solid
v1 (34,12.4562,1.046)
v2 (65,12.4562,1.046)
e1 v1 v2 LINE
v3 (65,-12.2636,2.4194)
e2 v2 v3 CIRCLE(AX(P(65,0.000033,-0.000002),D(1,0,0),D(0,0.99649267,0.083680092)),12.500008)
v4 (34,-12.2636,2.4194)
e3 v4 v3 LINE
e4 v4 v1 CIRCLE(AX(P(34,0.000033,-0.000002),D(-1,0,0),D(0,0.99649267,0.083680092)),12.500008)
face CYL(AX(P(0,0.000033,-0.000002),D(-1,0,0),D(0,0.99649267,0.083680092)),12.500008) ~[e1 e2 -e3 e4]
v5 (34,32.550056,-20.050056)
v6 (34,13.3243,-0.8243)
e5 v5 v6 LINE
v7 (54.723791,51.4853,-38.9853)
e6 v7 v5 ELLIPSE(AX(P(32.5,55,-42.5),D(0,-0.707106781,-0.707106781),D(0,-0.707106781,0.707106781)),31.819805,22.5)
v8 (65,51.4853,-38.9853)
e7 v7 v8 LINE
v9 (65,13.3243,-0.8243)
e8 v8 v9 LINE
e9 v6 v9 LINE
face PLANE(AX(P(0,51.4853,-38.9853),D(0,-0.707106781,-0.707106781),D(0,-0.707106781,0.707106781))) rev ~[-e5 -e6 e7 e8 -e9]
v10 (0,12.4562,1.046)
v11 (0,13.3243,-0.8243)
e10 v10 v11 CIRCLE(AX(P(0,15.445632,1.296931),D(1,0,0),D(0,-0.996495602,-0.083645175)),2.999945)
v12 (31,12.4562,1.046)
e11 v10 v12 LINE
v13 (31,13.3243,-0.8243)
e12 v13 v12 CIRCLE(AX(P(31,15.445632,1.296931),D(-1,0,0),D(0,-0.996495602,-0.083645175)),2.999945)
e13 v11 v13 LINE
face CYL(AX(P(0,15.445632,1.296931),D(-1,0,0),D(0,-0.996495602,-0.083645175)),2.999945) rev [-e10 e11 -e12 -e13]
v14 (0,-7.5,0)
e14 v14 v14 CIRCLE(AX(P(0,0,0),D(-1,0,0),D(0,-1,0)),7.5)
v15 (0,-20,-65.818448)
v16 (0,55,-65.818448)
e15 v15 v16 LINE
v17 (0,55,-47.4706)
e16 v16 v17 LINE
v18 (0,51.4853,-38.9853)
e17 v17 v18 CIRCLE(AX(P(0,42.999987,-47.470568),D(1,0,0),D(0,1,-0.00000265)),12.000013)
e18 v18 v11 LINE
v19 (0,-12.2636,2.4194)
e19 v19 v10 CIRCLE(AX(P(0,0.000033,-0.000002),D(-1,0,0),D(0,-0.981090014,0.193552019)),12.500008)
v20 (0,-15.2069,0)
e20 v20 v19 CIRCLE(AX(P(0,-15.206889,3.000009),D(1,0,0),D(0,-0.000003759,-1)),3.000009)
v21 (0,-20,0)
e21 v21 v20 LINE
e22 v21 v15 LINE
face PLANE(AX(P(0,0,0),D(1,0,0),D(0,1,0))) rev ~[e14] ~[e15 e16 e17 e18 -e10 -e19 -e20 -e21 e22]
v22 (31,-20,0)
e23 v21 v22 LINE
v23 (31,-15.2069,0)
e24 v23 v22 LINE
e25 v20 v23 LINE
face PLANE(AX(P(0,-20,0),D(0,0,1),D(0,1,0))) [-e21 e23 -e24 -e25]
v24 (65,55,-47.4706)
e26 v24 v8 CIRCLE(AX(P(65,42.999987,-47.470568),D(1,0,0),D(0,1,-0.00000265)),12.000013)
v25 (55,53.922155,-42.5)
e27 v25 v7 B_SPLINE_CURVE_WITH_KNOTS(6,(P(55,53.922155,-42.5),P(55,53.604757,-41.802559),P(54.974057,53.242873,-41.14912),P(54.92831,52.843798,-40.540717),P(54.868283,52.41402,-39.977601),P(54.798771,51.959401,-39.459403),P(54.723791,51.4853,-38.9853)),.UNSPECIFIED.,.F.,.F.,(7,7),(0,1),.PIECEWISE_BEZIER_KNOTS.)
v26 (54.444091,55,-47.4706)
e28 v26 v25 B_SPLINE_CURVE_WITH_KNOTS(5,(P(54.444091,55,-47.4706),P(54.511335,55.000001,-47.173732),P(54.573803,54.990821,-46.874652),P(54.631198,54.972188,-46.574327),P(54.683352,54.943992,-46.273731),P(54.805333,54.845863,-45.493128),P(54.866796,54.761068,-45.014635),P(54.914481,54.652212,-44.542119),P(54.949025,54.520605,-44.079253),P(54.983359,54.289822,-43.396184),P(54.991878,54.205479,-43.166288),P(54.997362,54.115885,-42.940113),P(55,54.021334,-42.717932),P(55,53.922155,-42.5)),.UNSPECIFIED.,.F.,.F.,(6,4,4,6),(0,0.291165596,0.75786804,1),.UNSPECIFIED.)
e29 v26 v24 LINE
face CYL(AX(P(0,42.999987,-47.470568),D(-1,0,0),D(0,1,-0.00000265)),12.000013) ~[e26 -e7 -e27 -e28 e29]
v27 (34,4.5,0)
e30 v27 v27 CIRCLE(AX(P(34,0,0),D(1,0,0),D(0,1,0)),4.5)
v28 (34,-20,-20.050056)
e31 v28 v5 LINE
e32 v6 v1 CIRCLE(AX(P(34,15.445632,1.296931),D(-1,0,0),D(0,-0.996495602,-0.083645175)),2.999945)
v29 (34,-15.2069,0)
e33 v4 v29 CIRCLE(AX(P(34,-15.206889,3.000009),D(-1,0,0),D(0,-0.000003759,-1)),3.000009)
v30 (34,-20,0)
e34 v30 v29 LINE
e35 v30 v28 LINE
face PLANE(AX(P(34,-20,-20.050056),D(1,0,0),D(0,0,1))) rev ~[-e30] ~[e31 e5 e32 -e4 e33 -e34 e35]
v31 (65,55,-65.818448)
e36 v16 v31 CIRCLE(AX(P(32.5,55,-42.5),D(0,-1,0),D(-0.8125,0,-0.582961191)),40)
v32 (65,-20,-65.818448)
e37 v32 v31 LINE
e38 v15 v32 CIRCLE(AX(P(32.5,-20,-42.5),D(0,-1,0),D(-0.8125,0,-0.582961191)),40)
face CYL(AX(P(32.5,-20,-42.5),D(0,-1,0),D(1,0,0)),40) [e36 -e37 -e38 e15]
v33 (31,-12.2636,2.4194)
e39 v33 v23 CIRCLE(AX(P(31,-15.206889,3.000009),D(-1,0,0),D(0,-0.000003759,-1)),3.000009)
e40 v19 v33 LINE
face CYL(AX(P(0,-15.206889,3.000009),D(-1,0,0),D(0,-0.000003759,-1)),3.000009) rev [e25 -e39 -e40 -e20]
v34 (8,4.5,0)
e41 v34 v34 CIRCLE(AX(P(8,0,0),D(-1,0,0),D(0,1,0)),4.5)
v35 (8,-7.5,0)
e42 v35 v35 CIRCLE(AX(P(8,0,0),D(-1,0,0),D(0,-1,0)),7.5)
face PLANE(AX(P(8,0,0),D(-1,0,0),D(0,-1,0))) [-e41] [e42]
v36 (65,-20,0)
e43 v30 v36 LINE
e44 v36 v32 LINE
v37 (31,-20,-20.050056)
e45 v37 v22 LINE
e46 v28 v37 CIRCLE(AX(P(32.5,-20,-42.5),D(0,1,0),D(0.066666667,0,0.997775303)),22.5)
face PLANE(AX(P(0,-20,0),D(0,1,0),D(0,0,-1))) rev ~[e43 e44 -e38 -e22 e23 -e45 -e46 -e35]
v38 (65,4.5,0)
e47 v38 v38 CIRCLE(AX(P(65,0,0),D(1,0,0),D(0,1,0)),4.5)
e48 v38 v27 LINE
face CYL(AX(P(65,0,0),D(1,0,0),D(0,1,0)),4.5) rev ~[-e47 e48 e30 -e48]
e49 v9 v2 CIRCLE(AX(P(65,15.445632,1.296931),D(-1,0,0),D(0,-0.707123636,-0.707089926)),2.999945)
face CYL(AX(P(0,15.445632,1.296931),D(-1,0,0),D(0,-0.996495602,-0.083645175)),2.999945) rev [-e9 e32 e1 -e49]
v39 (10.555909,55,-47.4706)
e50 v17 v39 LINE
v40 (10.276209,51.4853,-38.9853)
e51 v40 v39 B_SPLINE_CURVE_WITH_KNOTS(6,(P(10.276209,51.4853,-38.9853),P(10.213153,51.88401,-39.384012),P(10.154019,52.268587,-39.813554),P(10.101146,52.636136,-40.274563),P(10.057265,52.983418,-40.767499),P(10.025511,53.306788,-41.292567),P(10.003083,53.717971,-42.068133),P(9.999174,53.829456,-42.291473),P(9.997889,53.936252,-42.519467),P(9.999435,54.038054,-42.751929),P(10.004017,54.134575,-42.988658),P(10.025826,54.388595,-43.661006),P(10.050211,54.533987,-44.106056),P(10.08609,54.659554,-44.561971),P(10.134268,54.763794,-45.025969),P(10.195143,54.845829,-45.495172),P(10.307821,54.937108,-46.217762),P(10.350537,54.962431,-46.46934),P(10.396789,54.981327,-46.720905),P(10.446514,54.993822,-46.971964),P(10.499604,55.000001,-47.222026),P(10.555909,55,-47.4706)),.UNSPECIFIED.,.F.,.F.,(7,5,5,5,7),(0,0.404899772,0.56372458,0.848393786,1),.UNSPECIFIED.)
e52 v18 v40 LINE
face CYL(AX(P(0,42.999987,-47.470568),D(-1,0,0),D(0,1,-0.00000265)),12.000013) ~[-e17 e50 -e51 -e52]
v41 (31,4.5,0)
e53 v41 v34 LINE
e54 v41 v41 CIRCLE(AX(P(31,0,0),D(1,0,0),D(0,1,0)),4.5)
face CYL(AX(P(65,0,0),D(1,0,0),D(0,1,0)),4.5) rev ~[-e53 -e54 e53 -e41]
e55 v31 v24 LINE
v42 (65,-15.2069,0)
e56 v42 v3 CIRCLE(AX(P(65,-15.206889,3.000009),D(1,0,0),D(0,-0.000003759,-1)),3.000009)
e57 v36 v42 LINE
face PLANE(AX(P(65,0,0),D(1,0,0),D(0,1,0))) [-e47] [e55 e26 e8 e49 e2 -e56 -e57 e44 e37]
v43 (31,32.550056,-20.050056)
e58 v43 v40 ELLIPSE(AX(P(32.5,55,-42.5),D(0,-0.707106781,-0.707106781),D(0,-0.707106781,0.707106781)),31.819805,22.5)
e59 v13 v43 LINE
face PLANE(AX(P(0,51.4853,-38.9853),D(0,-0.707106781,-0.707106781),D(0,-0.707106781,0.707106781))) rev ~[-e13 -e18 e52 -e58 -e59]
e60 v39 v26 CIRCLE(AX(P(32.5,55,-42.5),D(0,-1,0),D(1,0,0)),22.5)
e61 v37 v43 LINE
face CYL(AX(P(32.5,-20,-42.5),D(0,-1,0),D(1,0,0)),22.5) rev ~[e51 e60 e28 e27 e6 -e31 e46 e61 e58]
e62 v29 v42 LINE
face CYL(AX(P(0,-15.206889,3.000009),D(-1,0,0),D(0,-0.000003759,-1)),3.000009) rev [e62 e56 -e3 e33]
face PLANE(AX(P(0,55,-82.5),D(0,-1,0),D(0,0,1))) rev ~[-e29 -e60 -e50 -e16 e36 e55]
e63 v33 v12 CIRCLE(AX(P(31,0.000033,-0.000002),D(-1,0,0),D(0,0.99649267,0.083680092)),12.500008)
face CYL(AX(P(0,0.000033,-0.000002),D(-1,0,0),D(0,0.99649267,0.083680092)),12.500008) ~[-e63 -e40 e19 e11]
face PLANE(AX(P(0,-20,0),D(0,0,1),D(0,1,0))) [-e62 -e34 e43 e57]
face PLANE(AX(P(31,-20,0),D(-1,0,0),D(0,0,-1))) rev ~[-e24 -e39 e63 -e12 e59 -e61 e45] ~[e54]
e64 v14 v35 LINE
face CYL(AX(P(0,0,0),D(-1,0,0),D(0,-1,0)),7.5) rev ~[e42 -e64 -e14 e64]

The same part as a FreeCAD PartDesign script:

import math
import FreeCAD as App
import Part
import Sketcher
Q = App.Units.Quantity

doc = App.newDocument("Part")
params = doc.addObject("Spreadsheet::Sheet", "Params")
for row, (alias, value) in enumerate([
    ("sketch1_radius", "12 mm"),
    ("sketch1_radius2", "3 mm"),
    ("sketch1_radius3", "12.5 mm"),
    ("sketch1_width", "75 mm"),
    ("sketch1_height", "82.5 mm"),
    ("pad1_length", "65 mm"),
    ("sketch2_diameter", "45 mm"),
    ("pocket1_length", "110 mm"),
    ("sketch3_radius", "40 mm"),
    ("sketch3_width", "32.5 mm"),
    ("pocket2_length", "110 mm"),
    ("sketch4_diameter", "9 mm"),
    ("pocket3_length", "120 mm"),
    ("sketch5_diameter", "15 mm"),
    ("sketch5_diameter2", "9 mm"),
    ("pocket4_length", "8 mm"),
    ("sketch6_width", "3 mm"),
    ("sketch6_radius", "22.5 mm"),
    ("pocket5_length", "130 mm"),
], start=1):
    params.set(f"A{row}", alias)
    params.set(f"B{row}", "=" + value)
    params.setAlias(f"B{row}", alias)

body = doc.addObject("PartDesign::Body", "Body")

# Sketch on YZ plane
sketch1 = body.newObject("Sketcher::SketchObject", "Sketch")
sketch1.AttachmentSupport = (doc.getObject("YZ_Plane"), [""])
sketch1.MapMode = "FlatFace"
sketch1.addGeometry(Part.LineSegment(App.Vector(-15.2, 0, 0), App.Vector(-20, 0, 0)), False)
sketch1.addGeometry(Part.LineSegment(App.Vector(-20, 0, 0), App.Vector(-20, -82.5, 0)), False)
sketch1.addGeometry(Part.LineSegment(App.Vector(-20, -82.5, 0), App.Vector(55, -82.5, 0)), False)
sketch1.addGeometry(Part.LineSegment(App.Vector(55, -82.5, 0), App.Vector(55, -47.5, 0)), False)
sketch1.addGeometry(Part.ArcOfCircle(Part.Circle(App.Vector(43, -47.5, 0), App.Vector(0, 0, 1), 12), math.radians(0), math.radians(45)), False)
sketch1.addGeometry(Part.LineSegment(App.Vector(51.5, -39, 0), App.Vector(13.3, -0.8, 0)), False)
sketch1.addGeometry(Part.ArcOfCircle(Part.Circle(App.Vector(15.4, 1.3, 0), App.Vector(0, 0, 1), 3), math.radians(-175), math.radians(-135)), False)
sketch1.addGeometry(Part.ArcOfCircle(Part.Circle(App.Vector(0, 0, 0), App.Vector(0, 0, 1), 12.5), math.radians(5), math.radians(169)), False)
sketch1.addGeometry(Part.ArcOfCircle(Part.Circle(App.Vector(-15.2, 3, 0), App.Vector(0, 0, 1), 3), math.radians(-90), math.radians(-11)), False)
sketch1.addConstraint(Sketcher.Constraint("Coincident", 0, 2, 1, 1))
sketch1.addConstraint(Sketcher.Constraint("Coincident", 1, 2, 2, 1))
sketch1.addConstraint(Sketcher.Constraint("Coincident", 2, 2, 3, 1))
sketch1.addConstraint(Sketcher.Constraint("Tangent", 3, 2, 4, 1))
sketch1.addConstraint(Sketcher.Constraint("Tangent", 4, 2, 5, 1))
sketch1.addConstraint(Sketcher.Constraint("Tangent", 5, 2, 6, 2))
sketch1.addConstraint(Sketcher.Constraint("Tangent", 6, 1, 7, 1))
sketch1.addConstraint(Sketcher.Constraint("Tangent", 7, 2, 8, 2))
sketch1.addConstraint(Sketcher.Constraint("Tangent", 8, 1, 0, 1))
sketch1.addConstraint(Sketcher.Constraint("Horizontal", 0))
sketch1.addConstraint(Sketcher.Constraint("Vertical", 1))
sketch1.addConstraint(Sketcher.Constraint("Horizontal", 2))
sketch1.addConstraint(Sketcher.Constraint("Vertical", 3))
sketch1.addConstraint(Sketcher.Constraint("Coincident", 7, 3, -1, 1))
sketch1.addConstraint(Sketcher.Constraint("Equal", 6, 8))
sketch1.addConstraint(Sketcher.Constraint("PointOnObject", 0, 2, -1))
sketch1.addConstraint(Sketcher.Constraint("Radius", 4, Q("12 mm")))
sketch1.addConstraint(Sketcher.Constraint("Radius", 6, Q("3 mm")))
sketch1.addConstraint(Sketcher.Constraint("Radius", 7, Q("12.5 mm")))
sketch1.addConstraint(Sketcher.Constraint("DistanceX", 2, 1, 2, 2, Q("75 mm")))
sketch1.addConstraint(Sketcher.Constraint("Angle", 5, Q("135 deg")))
sketch1.addConstraint(Sketcher.Constraint("DistanceY", 1, 2, 1, 1, Q("82.5 mm")))
sketch1.addConstraint(Sketcher.Constraint("DistanceX", -1, 1, 4, 3, Q("43 mm")))
sketch1.addConstraint(Sketcher.Constraint("DistanceY", 3, 1, 3, 2, Q("35.0294 mm")))
sketch1.setExpression("Constraints[16]", "Params.sketch1_radius")
sketch1.setExpression("Constraints[17]", "Params.sketch1_radius2")
sketch1.setExpression("Constraints[18]", "Params.sketch1_radius3")
sketch1.setExpression("Constraints[19]", "Params.sketch1_width")
sketch1.setExpression("Constraints[21]", "Params.sketch1_height")
pad1 = body.newObject("PartDesign::Pad", "Pad")
pad1.Profile = sketch1
pad1.setExpression("Length", "Params.pad1_length")

# Sketch on XZ plane
sketch2 = body.newObject("Sketcher::SketchObject", "Sketch001")
sketch2.AttachmentSupport = (doc.getObject("XZ_Plane"), [""])
sketch2.MapMode = "FlatFace"
sketch2.AttachmentOffset = App.Placement(App.Vector(0, 0, 20), App.Rotation())
sketch2.addGeometry(Part.Circle(App.Vector(32, -42, 0), App.Vector(0, 0, 1), 22), False)
sketch2.addConstraint(Sketcher.Constraint("Diameter", 0, Q("45 mm")))
sketch2.addConstraint(Sketcher.Constraint("DistanceY", 0, 3, -1, 1, Q("42.5 mm")))
sketch2.addConstraint(Sketcher.Constraint("DistanceX", -1, 1, 0, 3, Q("32.5 mm")))
sketch2.setExpression("Constraints[0]", "Params.sketch2_diameter")
pocket1 = body.newObject("PartDesign::Pocket", "Pocket")
pocket1.Profile = sketch2
pocket1.setExpression("Length", "Params.pocket1_length")

# Sketch on XZ plane
sketch3 = body.newObject("Sketcher::SketchObject", "Sketch002")
sketch3.AttachmentSupport = (doc.getObject("XZ_Plane"), [""])
sketch3.MapMode = "FlatFace"
sketch3.AttachmentOffset = App.Placement(App.Vector(0, 0, 20), App.Rotation())
sketch3.addGeometry(Part.ArcOfCircle(Part.Circle(App.Vector(32, -42, 0), App.Vector(0, 0, 1), 40), math.radians(-144), math.radians(-90)), False)
sketch3.addGeometry(Part.LineSegment(App.Vector(0, -66, 0), App.Vector(0, -82, 0)), False)
sketch3.addGeometry(Part.LineSegment(App.Vector(0, -82, 0), App.Vector(32, -82, 0)), False)
sketch3.addGeometry(Part.ArcOfCircle(Part.Circle(App.Vector(32, -42, 0), App.Vector(0, 0, 1), 40), math.radians(-90), math.radians(-36)), False)
sketch3.addGeometry(Part.LineSegment(App.Vector(32, -82, 0), App.Vector(65, -82, 0)), False)
sketch3.addGeometry(Part.LineSegment(App.Vector(65, -82, 0), App.Vector(65, -66, 0)), False)
sketch3.addConstraint(Sketcher.Constraint("Coincident", 0, 1, 1, 1))
sketch3.addConstraint(Sketcher.Constraint("Coincident", 1, 2, 2, 1))
sketch3.addConstraint(Sketcher.Constraint("Tangent", 2, 2, 0, 2))
sketch3.addConstraint(Sketcher.Constraint("Tangent", 3, 1, 4, 1))
sketch3.addConstraint(Sketcher.Constraint("Coincident", 4, 2, 5, 1))
sketch3.addConstraint(Sketcher.Constraint("Coincident", 5, 2, 3, 2))
sketch3.addConstraint(Sketcher.Constraint("Vertical", 1))
sketch3.addConstraint(Sketcher.Constraint("Horizontal", 2))
sketch3.addConstraint(Sketcher.Constraint("Horizontal", 4))
sketch3.addConstraint(Sketcher.Constraint("Vertical", 5))
sketch3.addConstraint(Sketcher.Constraint("Coincident", 3, 3, 0, 3))
sketch3.addConstraint(Sketcher.Constraint("Equal", 0, 3))
sketch3.addConstraint(Sketcher.Constraint("PointOnObject", 0, 1, -2))
sketch3.addConstraint(Sketcher.Constraint("Horizontal", 0, 1, 5, 2))
sketch3.addConstraint(Sketcher.Constraint("Radius", 0, Q("40 mm")))
sketch3.addConstraint(Sketcher.Constraint("DistanceX", 2, 1, 2, 2, Q("32.5 mm")))
sketch3.addConstraint(Sketcher.Constraint("DistanceY", 0, 3, -1, 1, Q("42.5 mm")))
sketch3.setExpression("Constraints[14]", "Params.sketch3_radius")
sketch3.setExpression("Constraints[15]", "Params.sketch3_width")
pocket2 = body.newObject("PartDesign::Pocket", "Pocket001")
pocket2.Profile = sketch3
pocket2.setExpression("Length", "Params.pocket2_length")

# Sketch on YZ plane
sketch4 = body.newObject("Sketcher::SketchObject", "Sketch003")
sketch4.AttachmentSupport = (doc.getObject("YZ_Plane"), [""])
sketch4.MapMode = "FlatFace"
sketch4.AttachmentOffset = App.Placement(App.Vector(0, 0, 65), App.Rotation())
sketch4.addGeometry(Part.Circle(App.Vector(0, 0, 0), App.Vector(0, 0, 1), 4.5), False)
sketch4.addConstraint(Sketcher.Constraint("Coincident", 0, 3, -1, 1))
sketch4.addConstraint(Sketcher.Constraint("Diameter", 0, Q("9 mm")))
sketch4.setExpression("Constraints[1]", "Params.sketch4_diameter")
pocket3 = body.newObject("PartDesign::Pocket", "Pocket002")
pocket3.Profile = sketch4
pocket3.setExpression("Length", "Params.pocket3_length")

# Sketch on YZ plane
sketch5 = body.newObject("Sketcher::SketchObject", "Sketch004")
sketch5.AttachmentSupport = (doc.getObject("YZ_Plane"), [""])
sketch5.MapMode = "FlatFace"
sketch5.addGeometry(Part.Circle(App.Vector(0, 0, 0), App.Vector(0, 0, 1), 7.5), False)
sketch5.addGeometry(Part.Circle(App.Vector(0, 0, 0), App.Vector(0, 0, 1), 4.5), False)
sketch5.addConstraint(Sketcher.Constraint("Coincident", 0, 3, -1, 1))
sketch5.addConstraint(Sketcher.Constraint("Coincident", 1, 3, -1, 1))
sketch5.addConstraint(Sketcher.Constraint("Diameter", 0, Q("15 mm")))
sketch5.addConstraint(Sketcher.Constraint("Diameter", 1, Q("9 mm")))
sketch5.setExpression("Constraints[2]", "Params.sketch5_diameter")
sketch5.setExpression("Constraints[3]", "Params.sketch5_diameter2")
pocket4 = body.newObject("PartDesign::Pocket", "Pocket003")
pocket4.Profile = sketch5
pocket4.setExpression("Length", "Params.pocket4_length")
pocket4.Reversed = True

# Sketch on XZ plane
sketch6 = body.newObject("Sketcher::SketchObject", "Sketch005")
sketch6.AttachmentSupport = (doc.getObject("XZ_Plane"), [""])
sketch6.MapMode = "FlatFace"
sketch6.AttachmentOffset = App.Placement(App.Vector(0, 0, 20), App.Rotation())
sketch6.addGeometry(Part.ArcOfCircle(Part.Circle(App.Vector(32.5, -42.5, 0), App.Vector(0, 0, 1), 22.5), math.radians(94), math.radians(446)), False)
sketch6.addGeometry(Part.LineSegment(App.Vector(34, -20.1, 0), App.Vector(34, -42.5, 0)), False)
sketch6.addGeometry(Part.LineSegment(App.Vector(34, -42.5, 0), App.Vector(31, -42.5, 0)), False)
sketch6.addGeometry(Part.LineSegment(App.Vector(31, -42.5, 0), App.Vector(31, -20.1, 0)), False)
sketch6.addGeometry(Part.ArcOfCircle(Part.Circle(App.Vector(32.5, -42.5, 0), App.Vector(0, 0, 1), 22.5), math.radians(86.18), math.radians(93.82)), False)
sketch6.addGeometry(Part.LineSegment(App.Vector(34, -20.1, 0), App.Vector(34, 31.9, 0)), False)
sketch6.addGeometry(Part.LineSegment(App.Vector(34, 31.9, 0), App.Vector(31, 31.9, 0)), False)
sketch6.addGeometry(Part.LineSegment(App.Vector(31, 31.9, 0), App.Vector(31, -20.1, 0)), False)
sketch6.addConstraint(Sketcher.Constraint("Coincident", 0, 2, 1, 1))
sketch6.addConstraint(Sketcher.Constraint("Coincident", 1, 2, 2, 1))
sketch6.addConstraint(Sketcher.Constraint("Coincident", 2, 2, 3, 1))
sketch6.addConstraint(Sketcher.Constraint("Coincident", 3, 2, 0, 1))
sketch6.addConstraint(Sketcher.Constraint("Coincident", 4, 1, 5, 1))
sketch6.addConstraint(Sketcher.Constraint("Coincident", 5, 2, 6, 1))
sketch6.addConstraint(Sketcher.Constraint("Coincident", 6, 2, 7, 1))
sketch6.addConstraint(Sketcher.Constraint("Coincident", 7, 2, 4, 2))
sketch6.addConstraint(Sketcher.Constraint("Vertical", 1))
sketch6.addConstraint(Sketcher.Constraint("Horizontal", 2))
sketch6.addConstraint(Sketcher.Constraint("Vertical", 3))
sketch6.addConstraint(Sketcher.Constraint("Vertical", 5))
sketch6.addConstraint(Sketcher.Constraint("Horizontal", 6))
sketch6.addConstraint(Sketcher.Constraint("Vertical", 7))
sketch6.addConstraint(Sketcher.Constraint("Coincident", 4, 3, 0, 3))
sketch6.addConstraint(Sketcher.Constraint("Coincident", 4, 1, 0, 2))
sketch6.addConstraint(Sketcher.Constraint("Horizontal", 4, 3, 1, 2))
sketch6.addConstraint(Sketcher.Constraint("Horizontal", 0, 2, 3, 2))
sketch6.addConstraint(Sketcher.Constraint("Horizontal", 4, 1, 7, 2))
sketch6.addConstraint(Sketcher.Constraint("DistanceX", 2, 2, 2, 1, Q("3 mm")))
sketch6.addConstraint(Sketcher.Constraint("Radius", 0, Q("22.5 mm")))
sketch6.addConstraint(Sketcher.Constraint("DistanceX", -1, 1, 0, 2, Q("34 mm")))
sketch6.addConstraint(Sketcher.Constraint("DistanceY", 0, 3, -1, 1, Q("42.5 mm")))
sketch6.addConstraint(Sketcher.Constraint("DistanceY", 5, 1, 5, 2, Q("51.9343 mm")))
sketch6.setExpression("Constraints[19]", "Params.sketch6_width")
sketch6.setExpression("Constraints[20]", "Params.sketch6_radius")
pocket5 = body.newObject("PartDesign::Pocket", "Pocket004")
pocket5.Profile = sketch6
pocket5.setExpression("Length", "Params.pocket5_length")

doc.recompute()
